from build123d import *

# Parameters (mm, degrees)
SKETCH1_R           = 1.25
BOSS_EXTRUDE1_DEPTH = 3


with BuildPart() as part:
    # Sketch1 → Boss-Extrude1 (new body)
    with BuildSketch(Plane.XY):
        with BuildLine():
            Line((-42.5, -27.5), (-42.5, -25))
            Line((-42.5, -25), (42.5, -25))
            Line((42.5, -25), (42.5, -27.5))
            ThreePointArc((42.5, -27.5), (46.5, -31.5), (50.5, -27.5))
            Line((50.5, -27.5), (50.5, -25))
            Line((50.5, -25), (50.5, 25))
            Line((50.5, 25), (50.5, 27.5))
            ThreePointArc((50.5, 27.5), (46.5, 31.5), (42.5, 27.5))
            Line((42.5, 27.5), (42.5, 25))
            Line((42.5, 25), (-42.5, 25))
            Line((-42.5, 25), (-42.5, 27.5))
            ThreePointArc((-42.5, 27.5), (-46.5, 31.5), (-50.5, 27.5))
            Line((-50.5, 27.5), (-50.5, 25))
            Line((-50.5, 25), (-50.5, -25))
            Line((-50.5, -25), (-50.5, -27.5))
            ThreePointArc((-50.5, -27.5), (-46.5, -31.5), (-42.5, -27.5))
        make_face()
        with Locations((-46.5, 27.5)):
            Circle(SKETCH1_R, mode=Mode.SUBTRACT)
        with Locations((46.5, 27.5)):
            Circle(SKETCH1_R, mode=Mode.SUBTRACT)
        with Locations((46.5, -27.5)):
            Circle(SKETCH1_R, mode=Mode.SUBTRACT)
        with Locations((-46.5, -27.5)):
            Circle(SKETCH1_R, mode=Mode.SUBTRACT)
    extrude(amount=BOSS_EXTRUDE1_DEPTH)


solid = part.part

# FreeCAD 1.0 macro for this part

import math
import FreeCAD as App
import Part
import Sketcher
from FreeCAD import Vector
Q = App.Units.Quantity

doc = App.newDocument("Part")
body = doc.addObject("PartDesign::Body", "Body")

# Sketch on XY plane
sketch1 = body.newObject("Sketcher::SketchObject", "Sketch")
sketch1.AttachmentSupport = (doc.getObject("XY_Plane"), [""])
sketch1.MapMode = "FlatFace"
sketch1.addGeometry(Part.LineSegment(Vector(-42.5, -27.5, 0), Vector(-42.5, -25, 0)), False)
sketch1.addGeometry(Part.LineSegment(Vector(-42.5, -25, 0), Vector(42.5, -25, 0)), False)
sketch1.addGeometry(Part.LineSegment(Vector(42.5, -25, 0), Vector(42.5, -27.5, 0)), False)
sketch1.addGeometry(Part.ArcOfCircle(Part.Circle(Vector(46.5, -27.5, 0), Vector(0, 0, 1), 4), math.radians(180), math.radians(360)), False)
sketch1.addGeometry(Part.LineSegment(Vector(50.5, -27.5, 0), Vector(50.5, 27.5, 0)), False)
sketch1.addGeometry(Part.ArcOfCircle(Part.Circle(Vector(46.5, 27.5, 0), Vector(0, 0, 1), 4), math.radians(0), math.radians(180)), False)
sketch1.addGeometry(Part.LineSegment(Vector(42.5, 27.5, 0), Vector(42.5, 25, 0)), False)
sketch1.addGeometry(Part.LineSegment(Vector(42.5, 25, 0), Vector(-42.5, 25, 0)), False)
sketch1.addGeometry(Part.LineSegment(Vector(-42.5, 25, 0), Vector(-42.5, 27.5, 0)), False)
sketch1.addGeometry(Part.ArcOfCircle(Part.Circle(Vector(-46.5, 27.5, 0), Vector(0, 0, 1), 4), math.radians(0), math.radians(180)), False)
sketch1.addGeometry(Part.LineSegment(Vector(-50.5, 27.5, 0), Vector(-50.5, -27.5, 0)), False)
sketch1.addGeometry(Part.ArcOfCircle(Part.Circle(Vector(-46.5, -27.5, 0), Vector(0, 0, 1), 4), math.radians(180), math.radians(360)), False)
sketch1.addGeometry(Part.Circle(Vector(-46.5, -27.5, 0), Vector(0, 0, 1), 1.2), False)
sketch1.addGeometry(Part.Circle(Vector(46.5, -27.5, 0), Vector(0, 0, 1), 1.2), False)
sketch1.addGeometry(Part.Circle(Vector(-46.5, 27.5, 0), Vector(0, 0, 1), 1.2), False)
sketch1.addGeometry(Part.Circle(Vector(46.5, 27.5, 0), Vector(0, 0, 1), 1.2), False)
sketch1.addConstraint(Sketcher.Constraint("Coincident", 0, 2, 1, 1))
sketch1.addConstraint(Sketcher.Constraint("Coincident", 1, 2, 2, 1))
sketch1.addConstraint(Sketcher.Constraint("Tangent", 2, 2, 3, 1))
sketch1.addConstraint(Sketcher.Constraint("Tangent", 3, 2, 4, 1))
sketch1.addConstraint(Sketcher.Constraint("Tangent", 4, 2, 5, 1))
sketch1.addConstraint(Sketcher.Constraint("Tangent", 5, 2, 6, 1))
sketch1.addConstraint(Sketcher.Constraint("Coincident", 6, 2, 7, 1))
sketch1.addConstraint(Sketcher.Constraint("Coincident", 7, 2, 8, 1))
sketch1.addConstraint(Sketcher.Constraint("Tangent", 8, 2, 9, 1))
sketch1.addConstraint(Sketcher.Constraint("Tangent", 9, 2, 10, 1))
sketch1.addConstraint(Sketcher.Constraint("Tangent", 10, 2, 11, 1))
sketch1.addConstraint(Sketcher.Constraint("Tangent", 11, 2, 0, 1))
sketch1.addConstraint(Sketcher.Constraint("Vertical", 0))
sketch1.addConstraint(Sketcher.Constraint("Horizontal", 1))
sketch1.addConstraint(Sketcher.Constraint("Vertical", 2))
sketch1.addConstraint(Sketcher.Constraint("Vertical", 4))
sketch1.addConstraint(Sketcher.Constraint("Vertical", 6))
sketch1.addConstraint(Sketcher.Constraint("Horizontal", 7))
sketch1.addConstraint(Sketcher.Constraint("Vertical", 8))
sketch1.addConstraint(Sketcher.Constraint("Vertical", 10))
sketch1.addConstraint(Sketcher.Constraint("Coincident", 12, 3, 11, 3))
sketch1.addConstraint(Sketcher.Constraint("Coincident", 13, 3, 3, 3))
sketch1.addConstraint(Sketcher.Constraint("Coincident", 14, 3, 9, 3))
sketch1.addConstraint(Sketcher.Constraint("Coincident", 15, 3, 5, 3))
sketch1.addConstraint(Sketcher.Constraint("Equal", 3, 5))
sketch1.addConstraint(Sketcher.Constraint("Equal", 5, 9))
sketch1.addConstraint(Sketcher.Constraint("Equal", 9, 11))
sketch1.addConstraint(Sketcher.Constraint("Equal", 12, 13))
sketch1.addConstraint(Sketcher.Constraint("Equal", 13, 14))
sketch1.addConstraint(Sketcher.Constraint("Equal", 14, 15))
sketch1.addConstraint(Sketcher.Constraint("Symmetric", 3, 3, 9, 3, -1, 1))
sketch1.addConstraint(Sketcher.Constraint("Horizontal", 5, 3, 9, 3))
sketch1.addConstraint(Sketcher.Constraint("Horizontal", 3, 3, 11, 3))
sketch1.addConstraint(Sketcher.Constraint("Equal", 2, 6))
sketch1.addConstraint(Sketcher.Constraint("Radius", 3, Q("4 mm")))
sketch1.addConstraint(Sketcher.Constraint("Diameter", 12, Q("2.5 mm")))
sketch1.addConstraint(Sketcher.Constraint("DistanceX", 1, 1, 1, 2, Q("85 mm")))
sketch1.addConstraint(Sketcher.Constraint("DistanceY", 4, 1, 4, 2, Q("55 mm")))
sketch1.addConstraint(Sketcher.Constraint("DistanceY", 0, 1, 0, 2, Q("2.5 mm")))
pad1 = body.newObject("PartDesign::Pad", "Pad")
pad1.Profile = sketch1
pad1.Length = 3

doc.recompute()
